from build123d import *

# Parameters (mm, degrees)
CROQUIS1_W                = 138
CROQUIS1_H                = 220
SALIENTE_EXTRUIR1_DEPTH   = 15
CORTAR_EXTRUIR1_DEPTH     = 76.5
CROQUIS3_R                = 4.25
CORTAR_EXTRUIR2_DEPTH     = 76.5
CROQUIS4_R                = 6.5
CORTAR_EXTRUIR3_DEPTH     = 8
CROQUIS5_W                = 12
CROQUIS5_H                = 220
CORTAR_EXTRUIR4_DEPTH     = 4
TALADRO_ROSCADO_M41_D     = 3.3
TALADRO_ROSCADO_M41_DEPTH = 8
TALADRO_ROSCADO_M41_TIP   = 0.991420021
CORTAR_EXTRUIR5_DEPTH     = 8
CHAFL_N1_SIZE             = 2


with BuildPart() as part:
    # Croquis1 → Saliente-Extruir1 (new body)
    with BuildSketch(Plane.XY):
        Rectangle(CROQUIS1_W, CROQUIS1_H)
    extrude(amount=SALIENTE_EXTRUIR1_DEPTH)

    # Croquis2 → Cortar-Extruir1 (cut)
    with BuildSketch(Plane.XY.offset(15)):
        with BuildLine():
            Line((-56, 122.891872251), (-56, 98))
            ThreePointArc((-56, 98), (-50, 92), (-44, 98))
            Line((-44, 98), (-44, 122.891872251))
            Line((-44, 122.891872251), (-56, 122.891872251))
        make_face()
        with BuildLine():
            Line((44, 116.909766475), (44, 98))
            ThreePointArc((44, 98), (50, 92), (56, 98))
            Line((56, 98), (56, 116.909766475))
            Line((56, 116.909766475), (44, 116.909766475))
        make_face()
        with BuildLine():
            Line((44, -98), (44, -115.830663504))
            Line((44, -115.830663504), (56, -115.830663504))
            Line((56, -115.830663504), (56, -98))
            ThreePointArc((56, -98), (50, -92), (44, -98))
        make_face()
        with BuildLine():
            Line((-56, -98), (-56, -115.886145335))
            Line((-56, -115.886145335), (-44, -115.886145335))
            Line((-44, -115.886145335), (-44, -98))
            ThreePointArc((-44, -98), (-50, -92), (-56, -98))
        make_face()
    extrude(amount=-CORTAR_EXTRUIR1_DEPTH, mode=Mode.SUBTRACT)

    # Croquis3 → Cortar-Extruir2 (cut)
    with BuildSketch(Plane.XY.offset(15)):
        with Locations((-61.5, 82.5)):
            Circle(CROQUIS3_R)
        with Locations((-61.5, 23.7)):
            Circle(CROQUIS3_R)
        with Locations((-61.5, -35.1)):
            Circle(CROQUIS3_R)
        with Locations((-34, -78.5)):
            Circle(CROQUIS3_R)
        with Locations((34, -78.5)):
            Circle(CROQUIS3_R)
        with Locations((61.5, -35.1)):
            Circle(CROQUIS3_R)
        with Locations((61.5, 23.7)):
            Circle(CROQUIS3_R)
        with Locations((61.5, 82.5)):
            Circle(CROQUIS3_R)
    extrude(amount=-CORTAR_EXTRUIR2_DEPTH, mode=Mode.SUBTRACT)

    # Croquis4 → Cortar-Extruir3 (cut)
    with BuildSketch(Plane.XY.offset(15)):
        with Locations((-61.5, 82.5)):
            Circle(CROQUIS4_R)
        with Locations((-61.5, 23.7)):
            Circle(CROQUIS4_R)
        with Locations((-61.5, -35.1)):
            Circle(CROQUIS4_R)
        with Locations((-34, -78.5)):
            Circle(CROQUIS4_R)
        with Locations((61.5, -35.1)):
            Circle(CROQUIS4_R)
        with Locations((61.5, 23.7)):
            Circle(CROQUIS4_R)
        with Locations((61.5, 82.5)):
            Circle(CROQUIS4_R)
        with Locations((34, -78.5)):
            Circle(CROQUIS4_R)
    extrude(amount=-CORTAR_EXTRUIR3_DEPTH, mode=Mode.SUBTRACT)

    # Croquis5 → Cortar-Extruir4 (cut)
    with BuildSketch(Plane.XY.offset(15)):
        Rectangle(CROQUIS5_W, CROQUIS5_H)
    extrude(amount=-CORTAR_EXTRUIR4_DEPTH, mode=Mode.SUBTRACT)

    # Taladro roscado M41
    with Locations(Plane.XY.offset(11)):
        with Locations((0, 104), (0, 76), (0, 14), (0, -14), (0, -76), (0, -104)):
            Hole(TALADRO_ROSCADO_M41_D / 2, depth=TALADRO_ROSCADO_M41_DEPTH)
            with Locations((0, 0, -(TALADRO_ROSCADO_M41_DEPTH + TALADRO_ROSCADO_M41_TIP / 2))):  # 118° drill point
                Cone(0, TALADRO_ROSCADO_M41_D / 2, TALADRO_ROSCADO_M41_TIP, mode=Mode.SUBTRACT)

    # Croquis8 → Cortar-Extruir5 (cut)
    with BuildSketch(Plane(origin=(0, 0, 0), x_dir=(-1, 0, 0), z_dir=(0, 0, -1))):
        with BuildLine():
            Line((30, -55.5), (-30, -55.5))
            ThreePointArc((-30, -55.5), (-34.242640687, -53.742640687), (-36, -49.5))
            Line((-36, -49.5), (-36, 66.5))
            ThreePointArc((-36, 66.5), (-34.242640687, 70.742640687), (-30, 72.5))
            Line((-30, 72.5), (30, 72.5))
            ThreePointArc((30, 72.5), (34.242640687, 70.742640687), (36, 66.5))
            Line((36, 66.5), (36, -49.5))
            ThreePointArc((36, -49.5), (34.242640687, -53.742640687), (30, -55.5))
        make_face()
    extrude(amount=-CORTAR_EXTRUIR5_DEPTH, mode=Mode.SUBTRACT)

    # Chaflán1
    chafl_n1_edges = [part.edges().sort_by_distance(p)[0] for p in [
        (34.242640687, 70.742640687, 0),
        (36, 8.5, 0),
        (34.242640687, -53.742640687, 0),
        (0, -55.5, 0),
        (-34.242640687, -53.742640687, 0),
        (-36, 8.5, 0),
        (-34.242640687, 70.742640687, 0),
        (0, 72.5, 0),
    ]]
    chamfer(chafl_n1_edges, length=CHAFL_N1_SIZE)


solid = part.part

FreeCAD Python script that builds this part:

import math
import FreeCAD as App
import Part
import Sketcher
Q = App.Units.Quantity


def edges_at(feature, points):
    """Names of the edges that pass closest to the given points."""
    edges = feature.Shape.Edges
    near = lambda p: min(range(len(edges)), key=lambda i: edges[i].distToShape(Part.Vertex(*p))[0])
    return sorted({f"Edge{near(p) + 1}" for p in points})

doc = App.newDocument("Part")
body = doc.addObject("PartDesign::Body", "Body")

# Sketch on XY plane
sketch1 = body.newObject("Sketcher::SketchObject", "Sketch")
sketch1.AttachmentSupport = (doc.getObject("XY_Plane"), [""])
sketch1.MapMode = "FlatFace"
sketch1.addGeometry([
    Part.LineSegment(App.Vector(-69, 110, 0), App.Vector(-69, -110, 0)),
    Part.LineSegment(App.Vector(-69, -110, 0), App.Vector(69, -110, 0)),
    Part.LineSegment(App.Vector(69, -110, 0), App.Vector(69, 110, 0)),
    Part.LineSegment(App.Vector(69, 110, 0), App.Vector(-69, 110, 0)),
], False)
sketch1.addConstraint([
    Sketcher.Constraint("Coincident", 0, 2, 1, 1),
    Sketcher.Constraint("Coincident", 1, 2, 2, 1),
    Sketcher.Constraint("Coincident", 2, 2, 3, 1),
    Sketcher.Constraint("Coincident", 3, 2, 0, 1),
    Sketcher.Constraint("Vertical", 0),
    Sketcher.Constraint("Horizontal", 1),
    Sketcher.Constraint("Vertical", 2),
    Sketcher.Constraint("Horizontal", 3),
    Sketcher.Constraint("Symmetric", 0, 2, 2, 2, -1, 1),
    Sketcher.Constraint("DistanceX", 1, 1, 1, 2, Q("138 mm")),
    Sketcher.Constraint("DistanceY", 0, 2, 0, 1, Q("220 mm")),
])
pad1 = body.newObject("PartDesign::Pad", "Pad")
pad1.Profile = sketch1
pad1.Length = 15

# Sketch on XY plane
sketch2 = body.newObject("Sketcher::SketchObject", "Sketch001")
sketch2.AttachmentSupport = (doc.getObject("XY_Plane"), [""])
sketch2.MapMode = "FlatFace"
sketch2.AttachmentOffset = App.Placement(App.Vector(0, 0, 15), App.Rotation())
sketch2.addGeometry([
    Part.LineSegment(App.Vector(-56, 123, 0), App.Vector(-56, 98, 0)),  # 0
    Part.ArcOfCircle(Part.Circle(App.Vector(-50, 98, 0), App.Vector(0, 0, 1), 6), math.radians(180), math.radians(360)),  # 1
    Part.LineSegment(App.Vector(-44, 98, 0), App.Vector(-44, 123, 0)),  # 2
    Part.LineSegment(App.Vector(-44, 123, 0), App.Vector(-56, 123, 0)),  # 3
    Part.LineSegment(App.Vector(44, 117, 0), App.Vector(44, 98, 0)),  # 4
    Part.ArcOfCircle(Part.Circle(App.Vector(50, 98, 0), App.Vector(0, 0, 1), 6), math.radians(180), math.radians(360)),  # 5
    Part.LineSegment(App.Vector(56, 98, 0), App.Vector(56, 117, 0)),  # 6
    Part.LineSegment(App.Vector(56, 117, 0), App.Vector(44, 117, 0)),  # 7
    Part.LineSegment(App.Vector(44, -98, 0), App.Vector(44, -116, 0)),  # 8
    Part.LineSegment(App.Vector(44, -116, 0), App.Vector(56, -116, 0)),  # 9
    Part.LineSegment(App.Vector(56, -116, 0), App.Vector(56, -98, 0)),  # 10
    Part.ArcOfCircle(Part.Circle(App.Vector(50, -98, 0), App.Vector(0, 0, 1), 6), math.radians(0), math.radians(180)),  # 11
    Part.LineSegment(App.Vector(-56, -98, 0), App.Vector(-56, -116, 0)),  # 12
    Part.LineSegment(App.Vector(-56, -116, 0), App.Vector(-44, -116, 0)),  # 13
    Part.LineSegment(App.Vector(-44, -116, 0), App.Vector(-44, -98, 0)),  # 14
    Part.ArcOfCircle(Part.Circle(App.Vector(-50, -98, 0), App.Vector(0, 0, 1), 6), math.radians(0), math.radians(180)),  # 15
], False)
sketch2.addConstraint([
    Sketcher.Constraint("Tangent", 0, 2, 1, 1),
    Sketcher.Constraint("Tangent", 1, 2, 2, 1),
    Sketcher.Constraint("Coincident", 2, 2, 3, 1),
    Sketcher.Constraint("Coincident", 3, 2, 0, 1),
    Sketcher.Constraint("Tangent", 4, 2, 5, 1),
    Sketcher.Constraint("Tangent", 5, 2, 6, 1),
    Sketcher.Constraint("Coincident", 6, 2, 7, 1),
    Sketcher.Constraint("Coincident", 7, 2, 4, 1),
    Sketcher.Constraint("Coincident", 8, 2, 9, 1),
    Sketcher.Constraint("Coincident", 9, 2, 10, 1),
    Sketcher.Constraint("Tangent", 10, 2, 11, 1),
    Sketcher.Constraint("Tangent", 11, 2, 8, 1),
    Sketcher.Constraint("Coincident", 12, 2, 13, 1),
    Sketcher.Constraint("Coincident", 13, 2, 14, 1),
    Sketcher.Constraint("Tangent", 14, 2, 15, 1),
    Sketcher.Constraint("Tangent", 15, 2, 12, 1),
    Sketcher.Constraint("Vertical", 0),
    Sketcher.Constraint("Vertical", 2),
    Sketcher.Constraint("Horizontal", 3),
    Sketcher.Constraint("Vertical", 4),
    Sketcher.Constraint("Vertical", 6),
    Sketcher.Constraint("Horizontal", 7),
    Sketcher.Constraint("Vertical", 8),
    Sketcher.Constraint("Horizontal", 9),
    Sketcher.Constraint("Vertical", 10),
    Sketcher.Constraint("Vertical", 12),
    Sketcher.Constraint("Horizontal", 13),
    Sketcher.Constraint("Vertical", 14),
    Sketcher.Constraint("Equal", 1, 5),
    Sketcher.Constraint("Equal", 5, 11),
    Sketcher.Constraint("Equal", 11, 15),
    Sketcher.Constraint("Symmetric", 1, 3, 11, 3, -1, 1),
    Sketcher.Constraint("Symmetric", 5, 3, 15, 3, -1, 1),
    Sketcher.Constraint("Symmetric", 1, 3, 5, 3, -2),
    Sketcher.Constraint("Radius", 1, Q("6 mm")),
    Sketcher.Constraint("DistanceX", 1, 3, -1, 1, Q("50 mm")),
    Sketcher.Constraint("DistanceY", -1, 1, 1, 3, Q("98 mm")),
    Sketcher.Constraint("DistanceY", 0, 2, 0, 1, Q("24.891872 mm")),
    Sketcher.Constraint("DistanceY", 4, 2, 4, 1, Q("18.909766 mm")),
    Sketcher.Constraint("DistanceY", 8, 2, 8, 1, Q("17.830664 mm")),
    Sketcher.Constraint("DistanceY", 12, 2, 12, 1, Q("17.886145 mm")),
])
pocket1 = body.newObject("PartDesign::Pocket", "Pocket")
pocket1.Profile = sketch2
pocket1.Length = 76.5

# Sketch on XY plane
sketch3 = body.newObject("Sketcher::SketchObject", "Sketch002")
sketch3.AttachmentSupport = (doc.getObject("XY_Plane"), [""])
sketch3.MapMode = "FlatFace"
sketch3.AttachmentOffset = App.Placement(App.Vector(0, 0, 15), App.Rotation())
sketch3.addGeometry([
    Part.Circle(App.Vector(-61.5, 82.5, 0), App.Vector(0, 0, 1), 4.2),  # 0
    Part.Circle(App.Vector(-61.5, 23.7, 0), App.Vector(0, 0, 1), 4.2),  # 1
    Part.Circle(App.Vector(-61.5, -35.1, 0), App.Vector(0, 0, 1), 4.2),  # 2
    Part.Circle(App.Vector(-34, -78.5, 0), App.Vector(0, 0, 1), 4.2),  # 3
    Part.Circle(App.Vector(34, -78.5, 0), App.Vector(0, 0, 1), 4.2),  # 4
    Part.Circle(App.Vector(61.5, -35.1, 0), App.Vector(0, 0, 1), 4.2),  # 5
    Part.Circle(App.Vector(61.5, 23.7, 0), App.Vector(0, 0, 1), 4.2),  # 6
    Part.Circle(App.Vector(61.5, 82.5, 0), App.Vector(0, 0, 1), 4.2),  # 7
], False)
sketch3.addConstraint([
    Sketcher.Constraint("Equal", 0, 1),
    Sketcher.Constraint("Equal", 1, 2),
    Sketcher.Constraint("Equal", 2, 3),
    Sketcher.Constraint("Equal", 3, 4),
    Sketcher.Constraint("Equal", 4, 5),
    Sketcher.Constraint("Equal", 5, 6),
    Sketcher.Constraint("Equal", 6, 7),
    Sketcher.Constraint("Symmetric", 3, 3, 4, 3, -2),
    Sketcher.Constraint("Symmetric", 2, 3, 5, 3, -2),
    Sketcher.Constraint("Symmetric", 1, 3, 6, 3, -2),
    Sketcher.Constraint("Symmetric", 0, 3, 7, 3, -2),
    Sketcher.Constraint("Vertical", 0, 3, 1, 3),
    Sketcher.Constraint("Vertical", 1, 3, 2, 3),
    Sketcher.Constraint("Diameter", 0, Q("8.5 mm")),
    Sketcher.Constraint("DistanceX", 3, 3, -1, 1, Q("34 mm")),
    Sketcher.Constraint("DistanceY", 3, 3, 0, 3, Q("161 mm")),
    Sketcher.Constraint("DistanceX", 2, 3, 5, 3, Q("123 mm")),
    Sketcher.Constraint("DistanceY", -1, 1, 0, 3, Q("82.5 mm")),
    Sketcher.Constraint("DistanceY", -1, 1, 1, 3, Q("23.7 mm")),
    Sketcher.Constraint("DistanceY", 2, 3, -1, 1, Q("35.1 mm")),
])
pocket2 = body.newObject("PartDesign::Pocket", "Pocket001")
pocket2.Profile = sketch3
pocket2.Length = 76.5

# Sketch on XY plane
sketch4 = body.newObject("Sketcher::SketchObject", "Sketch003")
sketch4.AttachmentSupport = (doc.getObject("XY_Plane"), [""])
sketch4.MapMode = "FlatFace"
sketch4.AttachmentOffset = App.Placement(App.Vector(0, 0, 15), App.Rotation())
sketch4.addGeometry([
    Part.Circle(App.Vector(-62, 82, 0), App.Vector(0, 0, 1), 6),  # 0
    Part.Circle(App.Vector(-62, 24, 0), App.Vector(0, 0, 1), 6),  # 1
    Part.Circle(App.Vector(-62, -35, 0), App.Vector(0, 0, 1), 6),  # 2
    Part.Circle(App.Vector(-34, -78, 0), App.Vector(0, 0, 1), 6),  # 3
    Part.Circle(App.Vector(62, -35, 0), App.Vector(0, 0, 1), 6),  # 4
    Part.Circle(App.Vector(62, 24, 0), App.Vector(0, 0, 1), 6),  # 5
    Part.Circle(App.Vector(62, 82, 0), App.Vector(0, 0, 1), 6),  # 6
    Part.Circle(App.Vector(34, -78, 0), App.Vector(0, 0, 1), 6),  # 7
], False)
sketch4.addConstraint([
    Sketcher.Constraint("Equal", 0, 1),
    Sketcher.Constraint("Equal", 1, 2),
    Sketcher.Constraint("Equal", 2, 3),
    Sketcher.Constraint("Equal", 3, 4),
    Sketcher.Constraint("Equal", 4, 5),
    Sketcher.Constraint("Equal", 5, 6),
    Sketcher.Constraint("Equal", 6, 7),
    Sketcher.Constraint("Symmetric", 2, 3, 4, 3, -2),
    Sketcher.Constraint("Symmetric", 1, 3, 5, 3, -2),
    Sketcher.Constraint("Symmetric", 0, 3, 6, 3, -2),
    Sketcher.Constraint("Symmetric", 3, 3, 7, 3, -2),
    Sketcher.Constraint("Vertical", 0, 3, 1, 3),
    Sketcher.Constraint("Vertical", 1, 3, 2, 3),
    Sketcher.Constraint("Diameter", 0, Q("13 mm")),
    Sketcher.Constraint("DistanceX", 3, 3, -1, 1, Q("34 mm")),
    Sketcher.Constraint("DistanceY", 3, 3, 0, 3, Q("161 mm")),
    Sketcher.Constraint("DistanceX", 2, 3, 4, 3, Q("123 mm")),
    Sketcher.Constraint("DistanceY", -1, 1, 0, 3, Q("82.5 mm")),
    Sketcher.Constraint("DistanceY", -1, 1, 1, 3, Q("23.7 mm")),
    Sketcher.Constraint("DistanceY", 2, 3, -1, 1, Q("35.1 mm")),
])
pocket3 = body.newObject("PartDesign::Pocket", "Pocket002")
pocket3.Profile = sketch4
pocket3.Length = 8

# Sketch on XY plane
sketch5 = body.newObject("Sketcher::SketchObject", "Sketch004")
sketch5.AttachmentSupport = (doc.getObject("XY_Plane"), [""])
sketch5.MapMode = "FlatFace"
sketch5.AttachmentOffset = App.Placement(App.Vector(0, 0, 15), App.Rotation())
sketch5.addGeometry([
    Part.LineSegment(App.Vector(-6, 110, 0), App.Vector(-6, -110, 0)),
    Part.LineSegment(App.Vector(-6, -110, 0), App.Vector(6, -110, 0)),
    Part.LineSegment(App.Vector(6, -110, 0), App.Vector(6, 110, 0)),
    Part.LineSegment(App.Vector(6, 110, 0), App.Vector(-6, 110, 0)),
], False)
sketch5.addConstraint([
    Sketcher.Constraint("Coincident", 0, 2, 1, 1),
    Sketcher.Constraint("Coincident", 1, 2, 2, 1),
    Sketcher.Constraint("Coincident", 2, 2, 3, 1),
    Sketcher.Constraint("Coincident", 3, 2, 0, 1),
    Sketcher.Constraint("Vertical", 0),
    Sketcher.Constraint("Horizontal", 1),
    Sketcher.Constraint("Vertical", 2),
    Sketcher.Constraint("Horizontal", 3),
    Sketcher.Constraint("Symmetric", 0, 2, 2, 2, -1, 1),
    Sketcher.Constraint("DistanceX", 1, 1, 1, 2, Q("12 mm")),
    Sketcher.Constraint("DistanceY", 0, 2, 0, 1, Q("220 mm")),
])
pocket4 = body.newObject("PartDesign::Pocket", "Pocket003")
pocket4.Profile = sketch5
pocket4.Length = 4

# Sketch on XY plane
sketch6 = body.newObject("Sketcher::SketchObject", "Sketch005")
sketch6.AttachmentSupport = (doc.getObject("XY_Plane"), [""])
sketch6.MapMode = "FlatFace"
sketch6.AttachmentOffset = App.Placement(App.Vector(0, 0, 11), App.Rotation())
sketch6.addGeometry([
    Part.Circle(App.Vector(0, 104, 0), App.Vector(0, 0, 1), 1.6),  # 0
    Part.Circle(App.Vector(0, 76, 0), App.Vector(0, 0, 1), 1.6),  # 1
    Part.Circle(App.Vector(0, 14, 0), App.Vector(0, 0, 1), 1.6),  # 2
    Part.Circle(App.Vector(0, -14, 0), App.Vector(0, 0, 1), 1.6),  # 3
    Part.Circle(App.Vector(0, -76, 0), App.Vector(0, 0, 1), 1.6),  # 4
    Part.Circle(App.Vector(0, -104, 0), App.Vector(0, 0, 1), 1.6),  # 5
], False)
sketch6.addConstraint([
    Sketcher.Constraint("Equal", 0, 1),
    Sketcher.Constraint("Equal", 1, 2),
    Sketcher.Constraint("Equal", 2, 3),
    Sketcher.Constraint("Equal", 3, 4),
    Sketcher.Constraint("Equal", 4, 5),
    Sketcher.Constraint("Symmetric", 2, 3, 3, 3, -1, 1),
    Sketcher.Constraint("Symmetric", 1, 3, 4, 3, -1, 1),
    Sketcher.Constraint("Symmetric", 0, 3, 5, 3, -1, 1),
    Sketcher.Constraint("PointOnObject", 0, 3, -2),
    Sketcher.Constraint("PointOnObject", 1, 3, -2),
    Sketcher.Constraint("PointOnObject", 2, 3, -2),
    Sketcher.Constraint("Diameter", 0, Q("3.3 mm")),
    Sketcher.Constraint("DistanceY", -1, 1, 0, 3, Q("104 mm")),
    Sketcher.Constraint("DistanceY", -1, 1, 1, 3, Q("76 mm")),
    Sketcher.Constraint("DistanceY", -1, 1, 2, 3, Q("14 mm")),
])
doc.recompute()
hole = body.newObject("PartDesign::Hole", "Hole")
hole.Profile = sketch6
hole.ThreadType = "None"
hole.Diameter = 3.3
hole.DepthType = "Dimension"
hole.Depth = 8
hole.DrillPoint = "Angled"
hole.DrillPointAngle = 118

# Sketch on XY plane
sketch7 = body.newObject("Sketcher::SketchObject", "Sketch006")
sketch7.AttachmentSupport = (doc.getObject("XY_Plane"), [""])
sketch7.MapMode = "FlatFace"
sketch7.addGeometry([
    Part.LineSegment(App.Vector(30, -56, 0), App.Vector(-30, -56, 0)),  # 0
    Part.ArcOfCircle(Part.Circle(App.Vector(-30, -50, 0), App.Vector(0, 0, 1), 6), math.radians(180), math.radians(270)),  # 1
    Part.LineSegment(App.Vector(-36, -50, 0), App.Vector(-36, 66, 0)),  # 2
    Part.ArcOfCircle(Part.Circle(App.Vector(-30, 66, 0), App.Vector(0, 0, 1), 6), math.radians(90), math.radians(180)),  # 3
    Part.LineSegment(App.Vector(-30, 72, 0), App.Vector(30, 72, 0)),  # 4
    Part.ArcOfCircle(Part.Circle(App.Vector(30, 66, 0), App.Vector(0, 0, 1), 6), math.radians(0), math.radians(90)),  # 5
    Part.LineSegment(App.Vector(36, 66, 0), App.Vector(36, -50, 0)),  # 6
    Part.ArcOfCircle(Part.Circle(App.Vector(30, -50, 0), App.Vector(0, 0, 1), 6), math.radians(-90), math.radians(0)),  # 7
], False)
sketch7.addConstraint([
    Sketcher.Constraint("Tangent", 0, 2, 1, 2),
    Sketcher.Constraint("Tangent", 1, 1, 2, 1),
    Sketcher.Constraint("Tangent", 2, 2, 3, 2),
    Sketcher.Constraint("Tangent", 3, 1, 4, 1),
    Sketcher.Constraint("Tangent", 4, 2, 5, 2),
    Sketcher.Constraint("Tangent", 5, 1, 6, 1),
    Sketcher.Constraint("Tangent", 6, 2, 7, 2),
    Sketcher.Constraint("Tangent", 7, 1, 0, 1),
    Sketcher.Constraint("Horizontal", 0),
    Sketcher.Constraint("Vertical", 2),
    Sketcher.Constraint("Horizontal", 4),
    Sketcher.Constraint("Vertical", 6),
    Sketcher.Constraint("Equal", 1, 3),
    Sketcher.Constraint("Equal", 3, 5),
    Sketcher.Constraint("Equal", 5, 7),
    Sketcher.Constraint("Radius", 1, Q("6 mm")),
    Sketcher.Constraint("DistanceX", 0, 2, 0, 1, Q("60 mm")),
    Sketcher.Constraint("DistanceY", 2, 1, 2, 2, Q("116 mm")),
    Sketcher.Constraint("DistanceX", 1, 3, -1, 1, Q("30 mm")),
    Sketcher.Constraint("DistanceY", 1, 3, -1, 1, Q("49.5 mm")),
])
pocket5 = body.newObject("PartDesign::Pocket", "Pocket004")
pocket5.Profile = sketch7
pocket5.Length = 8
pocket5.Reversed = True
doc.recompute()

chamfer = body.newObject("PartDesign::Chamfer", "Chamfer")
chamfer.Base = (pocket5, edges_at(pocket5, [
    (34.243, 70.743, 0),
    (36, 8.5, 0),
    (34.243, -53.743, 0),
    (0, -55.5, 0),
    (-34.243, -53.743, 0),
    (-36, 8.5, 0),
    (-34.243, 70.743, 0),
    (0, 72.5, 0),
]))
chamfer.Size = 2

doc.recompute()
